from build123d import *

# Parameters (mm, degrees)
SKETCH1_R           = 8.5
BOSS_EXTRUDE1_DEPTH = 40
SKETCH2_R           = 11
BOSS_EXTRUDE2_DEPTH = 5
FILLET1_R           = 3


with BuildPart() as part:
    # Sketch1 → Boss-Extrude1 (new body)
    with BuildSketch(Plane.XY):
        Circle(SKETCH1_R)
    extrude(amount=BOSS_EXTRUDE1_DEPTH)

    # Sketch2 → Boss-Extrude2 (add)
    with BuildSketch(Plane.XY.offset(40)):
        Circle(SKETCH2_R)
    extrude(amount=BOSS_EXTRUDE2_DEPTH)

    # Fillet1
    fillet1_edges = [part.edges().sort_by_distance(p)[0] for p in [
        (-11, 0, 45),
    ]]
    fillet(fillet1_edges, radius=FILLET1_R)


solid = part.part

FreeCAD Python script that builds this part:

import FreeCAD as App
import Part
import Sketcher

V = App.Vector


def edges_at(feature, points):
    """Names of the edges that pass closest to the given points."""
    edges = feature.Shape.Edges
    near = lambda p: min(range(len(edges)), key=lambda i: edges[i].distToShape(Part.Vertex(*p))[0])
    return sorted({f"Edge{near(p) + 1}" for p in points})

doc = App.newDocument("Part")
body = doc.addObject("PartDesign::Body", "Body")

# Sketch on XY plane
sketch1 = body.newObject("Sketcher::SketchObject", "Sketch")
sketch1.AttachmentSupport = (doc.getObject("XY_Plane"), [""])
sketch1.MapMode = "FlatFace"
sketch1.addGeometry(Part.Circle(V(0, 0, 0), V(0, 0, 1), 8.5), False)
sketch1.addConstraint(Sketcher.Constraint("Coincident", 0, 3, -1, 1))
sketch1.addConstraint(Sketcher.Constraint("Diameter", 0, 17.0))
pad1 = body.newObject("PartDesign::Pad", "Pad")
pad1.Profile = sketch1
pad1.Length = 40

# Sketch on XY plane
sketch2 = body.newObject("Sketcher::SketchObject", "Sketch001")
sketch2.AttachmentSupport = (doc.getObject("XY_Plane"), [""])
sketch2.MapMode = "FlatFace"
sketch2.AttachmentOffset = App.Placement(V(0, 0, 40), App.Rotation())
sketch2.addGeometry(Part.Circle(V(0, 0, 0), V(0, 0, 1), 11), False)
sketch2.addConstraint(Sketcher.Constraint("Coincident", 0, 3, -1, 1))
sketch2.addConstraint(Sketcher.Constraint("Diameter", 0, 22.0))
pad2 = body.newObject("PartDesign::Pad", "Pad001")
pad2.Profile = sketch2
pad2.Length = 5
doc.recompute()

fillet = body.newObject("PartDesign::Fillet", "Fillet")
fillet.Base = (pad2, edges_at(pad2, [(-11, 0, 45)]))
fillet.Radius = 3

doc.recompute()
